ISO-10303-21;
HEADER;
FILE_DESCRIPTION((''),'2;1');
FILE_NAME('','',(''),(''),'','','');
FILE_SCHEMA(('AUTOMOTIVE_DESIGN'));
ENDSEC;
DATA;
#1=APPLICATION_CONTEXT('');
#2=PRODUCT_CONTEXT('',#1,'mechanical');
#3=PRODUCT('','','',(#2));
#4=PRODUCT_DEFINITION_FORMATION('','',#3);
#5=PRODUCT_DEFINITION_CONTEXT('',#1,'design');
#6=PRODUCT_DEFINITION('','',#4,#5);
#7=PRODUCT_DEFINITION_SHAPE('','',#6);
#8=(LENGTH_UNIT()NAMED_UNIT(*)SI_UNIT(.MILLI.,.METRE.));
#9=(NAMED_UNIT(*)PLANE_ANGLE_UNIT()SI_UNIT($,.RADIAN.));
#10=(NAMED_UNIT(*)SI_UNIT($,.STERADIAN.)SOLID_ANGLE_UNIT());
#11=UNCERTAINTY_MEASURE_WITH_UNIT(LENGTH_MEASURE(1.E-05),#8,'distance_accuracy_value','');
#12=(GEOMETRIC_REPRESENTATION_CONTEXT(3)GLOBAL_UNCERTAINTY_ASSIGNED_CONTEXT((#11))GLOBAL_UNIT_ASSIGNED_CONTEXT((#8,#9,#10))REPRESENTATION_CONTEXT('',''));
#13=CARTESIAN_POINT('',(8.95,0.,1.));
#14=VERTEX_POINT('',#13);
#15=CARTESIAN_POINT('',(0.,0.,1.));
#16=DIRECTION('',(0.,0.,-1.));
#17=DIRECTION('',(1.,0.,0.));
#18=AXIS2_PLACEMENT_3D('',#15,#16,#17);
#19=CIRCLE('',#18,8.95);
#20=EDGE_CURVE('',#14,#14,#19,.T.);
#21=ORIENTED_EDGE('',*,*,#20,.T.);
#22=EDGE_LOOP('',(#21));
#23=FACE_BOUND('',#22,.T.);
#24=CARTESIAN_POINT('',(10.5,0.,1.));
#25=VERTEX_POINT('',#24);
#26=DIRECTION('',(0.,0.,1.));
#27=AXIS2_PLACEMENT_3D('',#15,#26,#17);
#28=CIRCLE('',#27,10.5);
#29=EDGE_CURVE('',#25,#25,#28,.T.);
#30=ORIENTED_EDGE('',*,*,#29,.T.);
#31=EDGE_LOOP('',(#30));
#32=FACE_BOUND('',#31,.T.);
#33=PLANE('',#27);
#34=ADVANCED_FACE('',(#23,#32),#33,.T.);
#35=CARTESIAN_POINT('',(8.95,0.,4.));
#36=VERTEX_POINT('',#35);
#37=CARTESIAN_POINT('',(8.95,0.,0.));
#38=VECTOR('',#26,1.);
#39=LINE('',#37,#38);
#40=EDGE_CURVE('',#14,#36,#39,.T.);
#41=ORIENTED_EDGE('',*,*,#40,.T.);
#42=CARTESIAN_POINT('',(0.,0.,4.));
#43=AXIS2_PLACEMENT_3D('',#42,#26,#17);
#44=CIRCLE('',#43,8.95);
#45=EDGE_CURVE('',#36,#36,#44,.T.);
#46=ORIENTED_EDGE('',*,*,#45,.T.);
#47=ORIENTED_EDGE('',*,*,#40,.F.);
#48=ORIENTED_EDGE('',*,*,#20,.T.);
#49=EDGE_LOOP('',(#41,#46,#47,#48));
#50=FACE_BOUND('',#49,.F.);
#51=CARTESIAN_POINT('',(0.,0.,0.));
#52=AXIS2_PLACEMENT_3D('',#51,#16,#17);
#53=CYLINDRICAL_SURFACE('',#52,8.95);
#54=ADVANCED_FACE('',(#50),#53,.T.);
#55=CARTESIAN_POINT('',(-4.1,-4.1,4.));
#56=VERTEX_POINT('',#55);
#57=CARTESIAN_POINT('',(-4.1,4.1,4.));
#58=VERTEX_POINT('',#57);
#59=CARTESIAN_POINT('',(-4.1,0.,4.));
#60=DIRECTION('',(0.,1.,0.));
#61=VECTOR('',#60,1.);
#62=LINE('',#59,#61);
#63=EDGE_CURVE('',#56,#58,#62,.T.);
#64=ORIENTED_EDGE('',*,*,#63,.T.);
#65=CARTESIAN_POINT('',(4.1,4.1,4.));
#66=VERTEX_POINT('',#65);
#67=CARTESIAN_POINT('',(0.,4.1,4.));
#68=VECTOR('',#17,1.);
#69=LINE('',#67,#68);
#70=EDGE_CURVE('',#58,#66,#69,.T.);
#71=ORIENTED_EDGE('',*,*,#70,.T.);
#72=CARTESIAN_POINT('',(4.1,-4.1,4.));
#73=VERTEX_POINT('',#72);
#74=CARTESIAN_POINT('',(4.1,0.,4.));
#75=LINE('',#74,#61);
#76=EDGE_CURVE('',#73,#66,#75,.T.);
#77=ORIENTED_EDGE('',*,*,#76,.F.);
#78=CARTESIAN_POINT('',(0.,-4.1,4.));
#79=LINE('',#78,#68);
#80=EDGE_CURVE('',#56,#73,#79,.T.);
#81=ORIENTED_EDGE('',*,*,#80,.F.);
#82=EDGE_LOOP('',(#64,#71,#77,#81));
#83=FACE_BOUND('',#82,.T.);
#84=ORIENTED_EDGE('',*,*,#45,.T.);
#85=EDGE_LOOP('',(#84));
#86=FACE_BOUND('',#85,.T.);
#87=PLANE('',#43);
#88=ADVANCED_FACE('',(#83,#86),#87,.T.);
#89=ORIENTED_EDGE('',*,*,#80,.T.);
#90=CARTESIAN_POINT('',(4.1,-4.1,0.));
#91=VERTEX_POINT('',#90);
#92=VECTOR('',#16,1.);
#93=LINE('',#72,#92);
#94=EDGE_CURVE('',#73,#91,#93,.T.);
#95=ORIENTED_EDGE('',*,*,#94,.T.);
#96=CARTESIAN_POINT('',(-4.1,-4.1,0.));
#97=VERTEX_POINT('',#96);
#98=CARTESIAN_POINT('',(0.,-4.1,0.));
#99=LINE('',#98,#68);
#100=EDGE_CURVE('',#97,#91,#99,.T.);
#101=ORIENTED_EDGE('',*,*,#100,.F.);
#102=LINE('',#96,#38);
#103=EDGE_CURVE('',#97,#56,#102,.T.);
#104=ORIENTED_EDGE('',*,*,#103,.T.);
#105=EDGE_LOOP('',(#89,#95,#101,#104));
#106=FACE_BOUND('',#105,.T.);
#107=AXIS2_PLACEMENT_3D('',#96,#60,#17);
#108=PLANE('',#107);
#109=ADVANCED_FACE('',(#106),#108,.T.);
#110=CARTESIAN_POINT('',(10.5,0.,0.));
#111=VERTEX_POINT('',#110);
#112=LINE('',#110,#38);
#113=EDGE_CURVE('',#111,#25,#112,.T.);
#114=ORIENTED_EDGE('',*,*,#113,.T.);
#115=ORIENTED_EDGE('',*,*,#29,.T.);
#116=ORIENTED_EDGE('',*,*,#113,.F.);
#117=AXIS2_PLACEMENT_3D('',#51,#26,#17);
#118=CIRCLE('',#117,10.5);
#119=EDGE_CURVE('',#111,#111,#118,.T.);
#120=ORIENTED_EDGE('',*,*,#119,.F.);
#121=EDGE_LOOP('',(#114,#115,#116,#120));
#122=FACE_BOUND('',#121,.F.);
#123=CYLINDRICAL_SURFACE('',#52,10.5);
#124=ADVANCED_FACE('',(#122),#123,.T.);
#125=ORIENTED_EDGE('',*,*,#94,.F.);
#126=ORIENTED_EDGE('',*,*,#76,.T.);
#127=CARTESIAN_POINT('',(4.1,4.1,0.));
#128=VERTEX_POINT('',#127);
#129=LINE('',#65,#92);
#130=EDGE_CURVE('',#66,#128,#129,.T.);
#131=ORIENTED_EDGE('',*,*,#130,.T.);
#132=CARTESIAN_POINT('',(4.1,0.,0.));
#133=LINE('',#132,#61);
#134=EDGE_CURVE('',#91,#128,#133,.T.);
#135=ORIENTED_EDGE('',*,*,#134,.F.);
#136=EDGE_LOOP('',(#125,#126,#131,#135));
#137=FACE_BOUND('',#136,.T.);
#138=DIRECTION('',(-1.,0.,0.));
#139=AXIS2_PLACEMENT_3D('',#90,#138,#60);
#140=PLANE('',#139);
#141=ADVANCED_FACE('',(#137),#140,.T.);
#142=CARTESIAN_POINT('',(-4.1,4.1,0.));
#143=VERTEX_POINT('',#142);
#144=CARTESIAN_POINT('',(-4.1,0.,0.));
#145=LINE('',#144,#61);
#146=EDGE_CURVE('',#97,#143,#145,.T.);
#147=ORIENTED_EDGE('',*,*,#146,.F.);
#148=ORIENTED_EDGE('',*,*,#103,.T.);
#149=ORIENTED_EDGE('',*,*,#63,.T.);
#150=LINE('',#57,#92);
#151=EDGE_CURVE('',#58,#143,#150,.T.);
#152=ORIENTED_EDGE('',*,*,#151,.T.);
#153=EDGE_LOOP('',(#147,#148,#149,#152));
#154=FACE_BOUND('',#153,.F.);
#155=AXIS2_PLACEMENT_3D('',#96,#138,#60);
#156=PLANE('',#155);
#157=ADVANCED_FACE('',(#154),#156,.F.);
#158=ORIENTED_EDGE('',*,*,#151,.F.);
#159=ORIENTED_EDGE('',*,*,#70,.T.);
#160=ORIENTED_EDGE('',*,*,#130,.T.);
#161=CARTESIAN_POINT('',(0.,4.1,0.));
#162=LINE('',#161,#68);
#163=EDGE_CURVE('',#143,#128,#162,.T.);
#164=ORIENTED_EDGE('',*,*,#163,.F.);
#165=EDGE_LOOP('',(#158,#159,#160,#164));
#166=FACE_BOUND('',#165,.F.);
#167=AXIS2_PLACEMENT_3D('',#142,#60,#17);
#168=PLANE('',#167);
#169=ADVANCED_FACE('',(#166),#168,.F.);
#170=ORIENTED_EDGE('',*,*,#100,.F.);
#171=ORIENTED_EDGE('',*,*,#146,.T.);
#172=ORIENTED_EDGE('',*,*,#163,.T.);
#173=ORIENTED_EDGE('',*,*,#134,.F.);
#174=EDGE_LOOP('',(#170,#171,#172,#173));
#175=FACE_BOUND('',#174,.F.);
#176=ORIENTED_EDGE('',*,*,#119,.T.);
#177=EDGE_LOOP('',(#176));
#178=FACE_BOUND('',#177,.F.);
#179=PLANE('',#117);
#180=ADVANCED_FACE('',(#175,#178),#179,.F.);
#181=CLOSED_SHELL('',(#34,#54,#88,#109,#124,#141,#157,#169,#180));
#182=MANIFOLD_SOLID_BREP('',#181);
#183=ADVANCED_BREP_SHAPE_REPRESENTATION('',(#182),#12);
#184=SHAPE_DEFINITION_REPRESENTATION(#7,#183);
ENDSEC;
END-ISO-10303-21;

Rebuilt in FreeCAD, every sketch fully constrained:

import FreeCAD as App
import Part
import Sketcher

V = App.Vector

doc = App.newDocument("Part")
params = doc.addObject("Spreadsheet::Sheet", "Params")
for row, (alias, value) in enumerate([
    ("sketch1_diameter", "17.9 mm"),
    ("sketch1_width", "8.2 mm"),
    ("pad1_length", "4 mm"),
    ("sketch2_diameter", "21 mm"),
    ("sketch2_width", "8.2 mm"),
    ("pad2_length", "1 mm"),
], start=1):
    params.set(f"A{row}", alias)
    params.set(f"B{row}", "=" + value)
    params.setAlias(f"B{row}", alias)

body = doc.addObject("PartDesign::Body", "Body")

# Sketch on XY plane
sketch1 = body.newObject("Sketcher::SketchObject", "Sketch")
sketch1.AttachmentSupport = (doc.getObject("XY_Plane"), [""])
sketch1.MapMode = "FlatFace"
sketch1.addGeometry([
    Part.Circle(V(0, 0, 0), V(0, 0, 1), 9),  # 0
    Part.LineSegment(V(4, -4, 0), V(-4, -4, 0)),  # 1
    Part.LineSegment(V(-4, -4, 0), V(-4, 4, 0)),  # 2
    Part.LineSegment(V(-4, 4, 0), V(4, 4, 0)),  # 3
    Part.LineSegment(V(4, 4, 0), V(4, -4, 0)),  # 4
], False)
sketch1.addConstraint([
    Sketcher.Constraint("Coincident", 1, 2, 2, 1),
    Sketcher.Constraint("Coincident", 2, 2, 3, 1),
    Sketcher.Constraint("Coincident", 3, 2, 4, 1),
    Sketcher.Constraint("Coincident", 4, 2, 1, 1),
    Sketcher.Constraint("Horizontal", 1),
    Sketcher.Constraint("Vertical", 2),
    Sketcher.Constraint("Horizontal", 3),
    Sketcher.Constraint("Vertical", 4),
    Sketcher.Constraint("Coincident", 0, 3, -1, 1),
    Sketcher.Constraint("Symmetric", 1, 2, 3, 2, -1, 1),
    Sketcher.Constraint("Equal", 3, 2),
    Sketcher.Constraint("Diameter", 0, 17.9),
    Sketcher.Constraint("DistanceX", 1, 2, 1, 1, 8.2),
])
sketch1.setExpression("Constraints[11]", "Params.sketch1_diameter")
sketch1.setExpression("Constraints[12]", "Params.sketch1_width")
pad1 = body.newObject("PartDesign::Pad", "Pad")
pad1.Profile = sketch1
pad1.setExpression("Length", "Params.pad1_length")

# Sketch on XY plane
sketch2 = body.newObject("Sketcher::SketchObject", "Sketch001")
sketch2.AttachmentSupport = (doc.getObject("XY_Plane"), [""])
sketch2.MapMode = "FlatFace"
sketch2.addGeometry([
    Part.Circle(V(0, 0, 0), V(0, 0, 1), 10),  # 0
    Part.LineSegment(V(4, -4, 0), V(-4, -4, 0)),  # 1
    Part.LineSegment(V(-4, -4, 0), V(-4, 4, 0)),  # 2
    Part.LineSegment(V(-4, 4, 0), V(4, 4, 0)),  # 3
    Part.LineSegment(V(4, 4, 0), V(4, -4, 0)),  # 4
], False)
sketch2.addConstraint([
    Sketcher.Constraint("Coincident", 1, 2, 2, 1),
    Sketcher.Constraint("Coincident", 2, 2, 3, 1),
    Sketcher.Constraint("Coincident", 3, 2, 4, 1),
    Sketcher.Constraint("Coincident", 4, 2, 1, 1),
    Sketcher.Constraint("Horizontal", 1),
    Sketcher.Constraint("Vertical", 2),
    Sketcher.Constraint("Horizontal", 3),
    Sketcher.Constraint("Vertical", 4),
    Sketcher.Constraint("Coincident", 0, 3, -1, 1),
    Sketcher.Constraint("Symmetric", 1, 2, 3, 2, -1, 1),
    Sketcher.Constraint("Equal", 3, 2),
    Sketcher.Constraint("Diameter", 0, 21.0),
    Sketcher.Constraint("DistanceX", 1, 2, 1, 1, 8.2),
])
sketch2.setExpression("Constraints[11]", "Params.sketch2_diameter")
sketch2.setExpression("Constraints[12]", "Params.sketch2_width")
pad2 = body.newObject("PartDesign::Pad", "Pad001")
pad2.Profile = sketch2
pad2.setExpression("Length", "Params.pad2_length")

doc.recompute()
